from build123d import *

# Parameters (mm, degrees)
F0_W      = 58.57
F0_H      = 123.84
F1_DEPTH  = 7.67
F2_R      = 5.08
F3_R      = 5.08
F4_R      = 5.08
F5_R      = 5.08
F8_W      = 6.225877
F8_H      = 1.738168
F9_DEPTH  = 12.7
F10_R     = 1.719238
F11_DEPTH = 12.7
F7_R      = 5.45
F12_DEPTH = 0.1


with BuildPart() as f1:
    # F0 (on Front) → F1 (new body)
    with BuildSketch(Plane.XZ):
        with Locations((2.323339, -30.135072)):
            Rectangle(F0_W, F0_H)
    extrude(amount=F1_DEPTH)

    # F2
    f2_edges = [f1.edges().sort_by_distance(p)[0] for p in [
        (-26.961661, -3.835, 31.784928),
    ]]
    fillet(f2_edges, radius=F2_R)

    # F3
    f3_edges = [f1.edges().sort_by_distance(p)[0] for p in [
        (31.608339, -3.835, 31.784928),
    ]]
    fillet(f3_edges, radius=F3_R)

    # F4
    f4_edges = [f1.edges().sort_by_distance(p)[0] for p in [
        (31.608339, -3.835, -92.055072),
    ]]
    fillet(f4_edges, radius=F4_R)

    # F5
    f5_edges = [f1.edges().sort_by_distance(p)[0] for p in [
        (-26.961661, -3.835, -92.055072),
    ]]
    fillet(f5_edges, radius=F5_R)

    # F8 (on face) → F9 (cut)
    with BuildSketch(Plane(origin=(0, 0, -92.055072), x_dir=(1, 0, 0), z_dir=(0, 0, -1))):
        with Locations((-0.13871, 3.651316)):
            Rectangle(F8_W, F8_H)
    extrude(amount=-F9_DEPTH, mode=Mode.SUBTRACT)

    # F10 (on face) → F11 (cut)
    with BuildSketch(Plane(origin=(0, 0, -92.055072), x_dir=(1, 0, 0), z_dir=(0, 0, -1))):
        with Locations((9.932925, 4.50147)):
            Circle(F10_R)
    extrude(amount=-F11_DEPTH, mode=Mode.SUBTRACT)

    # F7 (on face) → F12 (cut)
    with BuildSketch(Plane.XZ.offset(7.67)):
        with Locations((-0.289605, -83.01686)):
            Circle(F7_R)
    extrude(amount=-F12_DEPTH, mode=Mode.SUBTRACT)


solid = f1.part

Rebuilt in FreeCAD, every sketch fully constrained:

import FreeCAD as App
import Part
import Sketcher
from FreeCAD import Vector


def edges_at(feature, points):
    """Names of the edges that pass closest to the given points."""
    edges = feature.Shape.Edges
    near = lambda p: min(range(len(edges)), key=lambda i: edges[i].distToShape(Part.Vertex(*p))[0])
    return sorted({f"Edge{near(p) + 1}" for p in points})


def add_polygon(sketch, points):
    """Adds a closed chain of lines whose ends are joined by coincident constraints."""
    first, n = sketch.GeometryCount, len(points)
    for a, b in zip(points, points[1:] + points[:1]):
        sketch.addGeometry(Part.LineSegment(App.Vector(*a, 0), App.Vector(*b, 0)), False)
    for i in range(n):
        sketch.addConstraint(Sketcher.Constraint("Coincident", first + i, 2, first + (i + 1) % n, 1))

doc = App.newDocument("Part")
params = doc.addObject("Spreadsheet::Sheet", "Params")
for row, (alias, value) in enumerate([
    ("sketch1_width", "58.57 mm"),
    ("sketch1_height", "123.84 mm"),
    ("pad1_length", "7.67 mm"),
    ("fillet_radius", "5.08 mm"),
    ("fillet2_radius", "5.08 mm"),
    ("fillet3_radius", "5.08 mm"),
    ("fillet4_radius", "5.08 mm"),
    ("pocket1_length", "12.7 mm"),
    ("pocket2_length", "12.7 mm"),
    ("sketch4_diameter", "10.9 mm"),
    ("pocket3_length", "0.1 mm"),
], start=1):
    params.set(f"A{row}", alias)
    params.set(f"B{row}", "=" + value)
    params.setAlias(f"B{row}", alias)

body = doc.addObject("PartDesign::Body", "Body")

sketch1 = doc.addObject("Sketcher::SketchObject", "Sketch")
body.addObject(sketch1)
sketch1.AttachmentSupport = (doc.XZ_Plane, [""])
sketch1.MapMode = "FlatFace"
add_polygon(sketch1, [(-27, 32), (-27, -92), (32, -92), (32, 32)])
sketch1.addConstraint([
    Sketcher.Constraint("Vertical", 0),
    Sketcher.Constraint("Horizontal", 1),
    Sketcher.Constraint("Vertical", 2),
    Sketcher.Constraint("Horizontal", 3),
    Sketcher.Constraint("DistanceX", 1, 1, 1, 2, 58.57),
    Sketcher.Constraint("DistanceY", 0, 2, 0, 1, 123.84),
    Sketcher.Constraint("DistanceX", 0, 2, -1, 1, 26.961661),
    Sketcher.Constraint("DistanceY", 0, 2, -1, 1, 92.055072),
])
sketch1.setExpression("Constraints[8]", "Params.sketch1_width")
sketch1.setExpression("Constraints[9]", "Params.sketch1_height")
pad1 = doc.addObject("PartDesign::Pad", "Pad")
body.addObject(pad1)
pad1.Profile = sketch1
pad1.setExpression("Length", "Params.pad1_length")
doc.recompute()

fillet = doc.addObject("PartDesign::Fillet", "Fillet")
body.addObject(fillet)
fillet.Base = (pad1, edges_at(pad1, [(-26.962, -3.835, 31.785)]))
fillet.setExpression("Radius", "Params.fillet_radius")
doc.recompute()

fillet2 = doc.addObject("PartDesign::Fillet", "Fillet001")
body.addObject(fillet2)
fillet2.Base = (fillet, edges_at(fillet, [(31.608, -3.835, 31.785)]))
fillet2.setExpression("Radius", "Params.fillet2_radius")
doc.recompute()

fillet3 = doc.addObject("PartDesign::Fillet", "Fillet002")
body.addObject(fillet3)
fillet3.Base = (fillet2, edges_at(fillet2, [(31.608, -3.835, -92.055)]))
fillet3.setExpression("Radius", "Params.fillet3_radius")
doc.recompute()

fillet4 = doc.addObject("PartDesign::Fillet", "Fillet003")
body.addObject(fillet4)
fillet4.Base = (fillet3, edges_at(fillet3, [(-26.962, -3.835, -92.055)]))
fillet4.setExpression("Radius", "Params.fillet4_radius")

sketch2 = doc.addObject("Sketcher::SketchObject", "Sketch001")
body.addObject(sketch2)
sketch2.AttachmentSupport = (doc.XY_Plane, [""])
sketch2.MapMode = "FlatFace"
sketch2.AttachmentOffset = App.Placement(Vector(0, 0, -92.055072), App.Rotation())
add_polygon(sketch2, [(-3.3, -4.5), (-3.3, -2.8), (3, -2.8), (3, -4.5)])
sketch2.addConstraint([
    Sketcher.Constraint("Vertical", 0),
    Sketcher.Constraint("Horizontal", 1),
    Sketcher.Constraint("Vertical", 2),
    Sketcher.Constraint("Horizontal", 3),
    Sketcher.Constraint("DistanceY", 0, 1, 0, 2, 1.738168),
    Sketcher.Constraint("DistanceY", 2, 2, -1, 1, 4.5204),
    Sketcher.Constraint("DistanceX", 1, 1, 1, 2, 6.225877),
    Sketcher.Constraint("DistanceX", 0, 2, -1, 1, 3.251648),
])
pocket1 = doc.addObject("PartDesign::Pocket", "Pocket")
body.addObject(pocket1)
pocket1.Profile = sketch2
pocket1.setExpression("Length", "Params.pocket1_length")
pocket1.Reversed = True

sketch3 = doc.addObject("Sketcher::SketchObject", "Sketch002")
body.addObject(sketch3)
sketch3.AttachmentSupport = (doc.XY_Plane, [""])
sketch3.MapMode = "FlatFace"
sketch3.AttachmentOffset = App.Placement(Vector(0, 0, -92.055072), App.Rotation())
sketch3.addGeometry(Part.Circle(Vector(9.9, -4.5, 0), Vector(0, 0, 1), 1.7), False)
sketch3.addConstraint([
    Sketcher.Constraint("Diameter", 0, 3.438476),
    Sketcher.Constraint("DistanceY", 0, 3, -1, 1, 4.50147),
    Sketcher.Constraint("DistanceX", -1, 1, 0, 3, 9.932925),
])
pocket2 = doc.addObject("PartDesign::Pocket", "Pocket001")
body.addObject(pocket2)
pocket2.Profile = sketch3
pocket2.setExpression("Length", "Params.pocket2_length")
pocket2.Reversed = True

sketch4 = doc.addObject("Sketcher::SketchObject", "Sketch003")
body.addObject(sketch4)
sketch4.AttachmentSupport = (doc.XZ_Plane, [""])
sketch4.MapMode = "FlatFace"
sketch4.AttachmentOffset = App.Placement(Vector(0, 0, 7.67), App.Rotation())
sketch4.addGeometry(Part.Circle(Vector(0, -83, 0), Vector(0, 0, 1), 5), False)
sketch4.addConstraint([
    Sketcher.Constraint("Diameter", 0, 10.9),
    Sketcher.Constraint("DistanceY", 0, 3, -1, 1, 83.01686),
    Sketcher.Constraint("DistanceX", 0, 3, -1, 1, 0.289605),
])
sketch4.setExpression("Constraints[0]", "Params.sketch4_diameter")
pocket3 = doc.addObject("PartDesign::Pocket", "Pocket002")
body.addObject(pocket3)
pocket3.Profile = sketch4
pocket3.setExpression("Length", "Params.pocket3_length")

doc.recompute()
